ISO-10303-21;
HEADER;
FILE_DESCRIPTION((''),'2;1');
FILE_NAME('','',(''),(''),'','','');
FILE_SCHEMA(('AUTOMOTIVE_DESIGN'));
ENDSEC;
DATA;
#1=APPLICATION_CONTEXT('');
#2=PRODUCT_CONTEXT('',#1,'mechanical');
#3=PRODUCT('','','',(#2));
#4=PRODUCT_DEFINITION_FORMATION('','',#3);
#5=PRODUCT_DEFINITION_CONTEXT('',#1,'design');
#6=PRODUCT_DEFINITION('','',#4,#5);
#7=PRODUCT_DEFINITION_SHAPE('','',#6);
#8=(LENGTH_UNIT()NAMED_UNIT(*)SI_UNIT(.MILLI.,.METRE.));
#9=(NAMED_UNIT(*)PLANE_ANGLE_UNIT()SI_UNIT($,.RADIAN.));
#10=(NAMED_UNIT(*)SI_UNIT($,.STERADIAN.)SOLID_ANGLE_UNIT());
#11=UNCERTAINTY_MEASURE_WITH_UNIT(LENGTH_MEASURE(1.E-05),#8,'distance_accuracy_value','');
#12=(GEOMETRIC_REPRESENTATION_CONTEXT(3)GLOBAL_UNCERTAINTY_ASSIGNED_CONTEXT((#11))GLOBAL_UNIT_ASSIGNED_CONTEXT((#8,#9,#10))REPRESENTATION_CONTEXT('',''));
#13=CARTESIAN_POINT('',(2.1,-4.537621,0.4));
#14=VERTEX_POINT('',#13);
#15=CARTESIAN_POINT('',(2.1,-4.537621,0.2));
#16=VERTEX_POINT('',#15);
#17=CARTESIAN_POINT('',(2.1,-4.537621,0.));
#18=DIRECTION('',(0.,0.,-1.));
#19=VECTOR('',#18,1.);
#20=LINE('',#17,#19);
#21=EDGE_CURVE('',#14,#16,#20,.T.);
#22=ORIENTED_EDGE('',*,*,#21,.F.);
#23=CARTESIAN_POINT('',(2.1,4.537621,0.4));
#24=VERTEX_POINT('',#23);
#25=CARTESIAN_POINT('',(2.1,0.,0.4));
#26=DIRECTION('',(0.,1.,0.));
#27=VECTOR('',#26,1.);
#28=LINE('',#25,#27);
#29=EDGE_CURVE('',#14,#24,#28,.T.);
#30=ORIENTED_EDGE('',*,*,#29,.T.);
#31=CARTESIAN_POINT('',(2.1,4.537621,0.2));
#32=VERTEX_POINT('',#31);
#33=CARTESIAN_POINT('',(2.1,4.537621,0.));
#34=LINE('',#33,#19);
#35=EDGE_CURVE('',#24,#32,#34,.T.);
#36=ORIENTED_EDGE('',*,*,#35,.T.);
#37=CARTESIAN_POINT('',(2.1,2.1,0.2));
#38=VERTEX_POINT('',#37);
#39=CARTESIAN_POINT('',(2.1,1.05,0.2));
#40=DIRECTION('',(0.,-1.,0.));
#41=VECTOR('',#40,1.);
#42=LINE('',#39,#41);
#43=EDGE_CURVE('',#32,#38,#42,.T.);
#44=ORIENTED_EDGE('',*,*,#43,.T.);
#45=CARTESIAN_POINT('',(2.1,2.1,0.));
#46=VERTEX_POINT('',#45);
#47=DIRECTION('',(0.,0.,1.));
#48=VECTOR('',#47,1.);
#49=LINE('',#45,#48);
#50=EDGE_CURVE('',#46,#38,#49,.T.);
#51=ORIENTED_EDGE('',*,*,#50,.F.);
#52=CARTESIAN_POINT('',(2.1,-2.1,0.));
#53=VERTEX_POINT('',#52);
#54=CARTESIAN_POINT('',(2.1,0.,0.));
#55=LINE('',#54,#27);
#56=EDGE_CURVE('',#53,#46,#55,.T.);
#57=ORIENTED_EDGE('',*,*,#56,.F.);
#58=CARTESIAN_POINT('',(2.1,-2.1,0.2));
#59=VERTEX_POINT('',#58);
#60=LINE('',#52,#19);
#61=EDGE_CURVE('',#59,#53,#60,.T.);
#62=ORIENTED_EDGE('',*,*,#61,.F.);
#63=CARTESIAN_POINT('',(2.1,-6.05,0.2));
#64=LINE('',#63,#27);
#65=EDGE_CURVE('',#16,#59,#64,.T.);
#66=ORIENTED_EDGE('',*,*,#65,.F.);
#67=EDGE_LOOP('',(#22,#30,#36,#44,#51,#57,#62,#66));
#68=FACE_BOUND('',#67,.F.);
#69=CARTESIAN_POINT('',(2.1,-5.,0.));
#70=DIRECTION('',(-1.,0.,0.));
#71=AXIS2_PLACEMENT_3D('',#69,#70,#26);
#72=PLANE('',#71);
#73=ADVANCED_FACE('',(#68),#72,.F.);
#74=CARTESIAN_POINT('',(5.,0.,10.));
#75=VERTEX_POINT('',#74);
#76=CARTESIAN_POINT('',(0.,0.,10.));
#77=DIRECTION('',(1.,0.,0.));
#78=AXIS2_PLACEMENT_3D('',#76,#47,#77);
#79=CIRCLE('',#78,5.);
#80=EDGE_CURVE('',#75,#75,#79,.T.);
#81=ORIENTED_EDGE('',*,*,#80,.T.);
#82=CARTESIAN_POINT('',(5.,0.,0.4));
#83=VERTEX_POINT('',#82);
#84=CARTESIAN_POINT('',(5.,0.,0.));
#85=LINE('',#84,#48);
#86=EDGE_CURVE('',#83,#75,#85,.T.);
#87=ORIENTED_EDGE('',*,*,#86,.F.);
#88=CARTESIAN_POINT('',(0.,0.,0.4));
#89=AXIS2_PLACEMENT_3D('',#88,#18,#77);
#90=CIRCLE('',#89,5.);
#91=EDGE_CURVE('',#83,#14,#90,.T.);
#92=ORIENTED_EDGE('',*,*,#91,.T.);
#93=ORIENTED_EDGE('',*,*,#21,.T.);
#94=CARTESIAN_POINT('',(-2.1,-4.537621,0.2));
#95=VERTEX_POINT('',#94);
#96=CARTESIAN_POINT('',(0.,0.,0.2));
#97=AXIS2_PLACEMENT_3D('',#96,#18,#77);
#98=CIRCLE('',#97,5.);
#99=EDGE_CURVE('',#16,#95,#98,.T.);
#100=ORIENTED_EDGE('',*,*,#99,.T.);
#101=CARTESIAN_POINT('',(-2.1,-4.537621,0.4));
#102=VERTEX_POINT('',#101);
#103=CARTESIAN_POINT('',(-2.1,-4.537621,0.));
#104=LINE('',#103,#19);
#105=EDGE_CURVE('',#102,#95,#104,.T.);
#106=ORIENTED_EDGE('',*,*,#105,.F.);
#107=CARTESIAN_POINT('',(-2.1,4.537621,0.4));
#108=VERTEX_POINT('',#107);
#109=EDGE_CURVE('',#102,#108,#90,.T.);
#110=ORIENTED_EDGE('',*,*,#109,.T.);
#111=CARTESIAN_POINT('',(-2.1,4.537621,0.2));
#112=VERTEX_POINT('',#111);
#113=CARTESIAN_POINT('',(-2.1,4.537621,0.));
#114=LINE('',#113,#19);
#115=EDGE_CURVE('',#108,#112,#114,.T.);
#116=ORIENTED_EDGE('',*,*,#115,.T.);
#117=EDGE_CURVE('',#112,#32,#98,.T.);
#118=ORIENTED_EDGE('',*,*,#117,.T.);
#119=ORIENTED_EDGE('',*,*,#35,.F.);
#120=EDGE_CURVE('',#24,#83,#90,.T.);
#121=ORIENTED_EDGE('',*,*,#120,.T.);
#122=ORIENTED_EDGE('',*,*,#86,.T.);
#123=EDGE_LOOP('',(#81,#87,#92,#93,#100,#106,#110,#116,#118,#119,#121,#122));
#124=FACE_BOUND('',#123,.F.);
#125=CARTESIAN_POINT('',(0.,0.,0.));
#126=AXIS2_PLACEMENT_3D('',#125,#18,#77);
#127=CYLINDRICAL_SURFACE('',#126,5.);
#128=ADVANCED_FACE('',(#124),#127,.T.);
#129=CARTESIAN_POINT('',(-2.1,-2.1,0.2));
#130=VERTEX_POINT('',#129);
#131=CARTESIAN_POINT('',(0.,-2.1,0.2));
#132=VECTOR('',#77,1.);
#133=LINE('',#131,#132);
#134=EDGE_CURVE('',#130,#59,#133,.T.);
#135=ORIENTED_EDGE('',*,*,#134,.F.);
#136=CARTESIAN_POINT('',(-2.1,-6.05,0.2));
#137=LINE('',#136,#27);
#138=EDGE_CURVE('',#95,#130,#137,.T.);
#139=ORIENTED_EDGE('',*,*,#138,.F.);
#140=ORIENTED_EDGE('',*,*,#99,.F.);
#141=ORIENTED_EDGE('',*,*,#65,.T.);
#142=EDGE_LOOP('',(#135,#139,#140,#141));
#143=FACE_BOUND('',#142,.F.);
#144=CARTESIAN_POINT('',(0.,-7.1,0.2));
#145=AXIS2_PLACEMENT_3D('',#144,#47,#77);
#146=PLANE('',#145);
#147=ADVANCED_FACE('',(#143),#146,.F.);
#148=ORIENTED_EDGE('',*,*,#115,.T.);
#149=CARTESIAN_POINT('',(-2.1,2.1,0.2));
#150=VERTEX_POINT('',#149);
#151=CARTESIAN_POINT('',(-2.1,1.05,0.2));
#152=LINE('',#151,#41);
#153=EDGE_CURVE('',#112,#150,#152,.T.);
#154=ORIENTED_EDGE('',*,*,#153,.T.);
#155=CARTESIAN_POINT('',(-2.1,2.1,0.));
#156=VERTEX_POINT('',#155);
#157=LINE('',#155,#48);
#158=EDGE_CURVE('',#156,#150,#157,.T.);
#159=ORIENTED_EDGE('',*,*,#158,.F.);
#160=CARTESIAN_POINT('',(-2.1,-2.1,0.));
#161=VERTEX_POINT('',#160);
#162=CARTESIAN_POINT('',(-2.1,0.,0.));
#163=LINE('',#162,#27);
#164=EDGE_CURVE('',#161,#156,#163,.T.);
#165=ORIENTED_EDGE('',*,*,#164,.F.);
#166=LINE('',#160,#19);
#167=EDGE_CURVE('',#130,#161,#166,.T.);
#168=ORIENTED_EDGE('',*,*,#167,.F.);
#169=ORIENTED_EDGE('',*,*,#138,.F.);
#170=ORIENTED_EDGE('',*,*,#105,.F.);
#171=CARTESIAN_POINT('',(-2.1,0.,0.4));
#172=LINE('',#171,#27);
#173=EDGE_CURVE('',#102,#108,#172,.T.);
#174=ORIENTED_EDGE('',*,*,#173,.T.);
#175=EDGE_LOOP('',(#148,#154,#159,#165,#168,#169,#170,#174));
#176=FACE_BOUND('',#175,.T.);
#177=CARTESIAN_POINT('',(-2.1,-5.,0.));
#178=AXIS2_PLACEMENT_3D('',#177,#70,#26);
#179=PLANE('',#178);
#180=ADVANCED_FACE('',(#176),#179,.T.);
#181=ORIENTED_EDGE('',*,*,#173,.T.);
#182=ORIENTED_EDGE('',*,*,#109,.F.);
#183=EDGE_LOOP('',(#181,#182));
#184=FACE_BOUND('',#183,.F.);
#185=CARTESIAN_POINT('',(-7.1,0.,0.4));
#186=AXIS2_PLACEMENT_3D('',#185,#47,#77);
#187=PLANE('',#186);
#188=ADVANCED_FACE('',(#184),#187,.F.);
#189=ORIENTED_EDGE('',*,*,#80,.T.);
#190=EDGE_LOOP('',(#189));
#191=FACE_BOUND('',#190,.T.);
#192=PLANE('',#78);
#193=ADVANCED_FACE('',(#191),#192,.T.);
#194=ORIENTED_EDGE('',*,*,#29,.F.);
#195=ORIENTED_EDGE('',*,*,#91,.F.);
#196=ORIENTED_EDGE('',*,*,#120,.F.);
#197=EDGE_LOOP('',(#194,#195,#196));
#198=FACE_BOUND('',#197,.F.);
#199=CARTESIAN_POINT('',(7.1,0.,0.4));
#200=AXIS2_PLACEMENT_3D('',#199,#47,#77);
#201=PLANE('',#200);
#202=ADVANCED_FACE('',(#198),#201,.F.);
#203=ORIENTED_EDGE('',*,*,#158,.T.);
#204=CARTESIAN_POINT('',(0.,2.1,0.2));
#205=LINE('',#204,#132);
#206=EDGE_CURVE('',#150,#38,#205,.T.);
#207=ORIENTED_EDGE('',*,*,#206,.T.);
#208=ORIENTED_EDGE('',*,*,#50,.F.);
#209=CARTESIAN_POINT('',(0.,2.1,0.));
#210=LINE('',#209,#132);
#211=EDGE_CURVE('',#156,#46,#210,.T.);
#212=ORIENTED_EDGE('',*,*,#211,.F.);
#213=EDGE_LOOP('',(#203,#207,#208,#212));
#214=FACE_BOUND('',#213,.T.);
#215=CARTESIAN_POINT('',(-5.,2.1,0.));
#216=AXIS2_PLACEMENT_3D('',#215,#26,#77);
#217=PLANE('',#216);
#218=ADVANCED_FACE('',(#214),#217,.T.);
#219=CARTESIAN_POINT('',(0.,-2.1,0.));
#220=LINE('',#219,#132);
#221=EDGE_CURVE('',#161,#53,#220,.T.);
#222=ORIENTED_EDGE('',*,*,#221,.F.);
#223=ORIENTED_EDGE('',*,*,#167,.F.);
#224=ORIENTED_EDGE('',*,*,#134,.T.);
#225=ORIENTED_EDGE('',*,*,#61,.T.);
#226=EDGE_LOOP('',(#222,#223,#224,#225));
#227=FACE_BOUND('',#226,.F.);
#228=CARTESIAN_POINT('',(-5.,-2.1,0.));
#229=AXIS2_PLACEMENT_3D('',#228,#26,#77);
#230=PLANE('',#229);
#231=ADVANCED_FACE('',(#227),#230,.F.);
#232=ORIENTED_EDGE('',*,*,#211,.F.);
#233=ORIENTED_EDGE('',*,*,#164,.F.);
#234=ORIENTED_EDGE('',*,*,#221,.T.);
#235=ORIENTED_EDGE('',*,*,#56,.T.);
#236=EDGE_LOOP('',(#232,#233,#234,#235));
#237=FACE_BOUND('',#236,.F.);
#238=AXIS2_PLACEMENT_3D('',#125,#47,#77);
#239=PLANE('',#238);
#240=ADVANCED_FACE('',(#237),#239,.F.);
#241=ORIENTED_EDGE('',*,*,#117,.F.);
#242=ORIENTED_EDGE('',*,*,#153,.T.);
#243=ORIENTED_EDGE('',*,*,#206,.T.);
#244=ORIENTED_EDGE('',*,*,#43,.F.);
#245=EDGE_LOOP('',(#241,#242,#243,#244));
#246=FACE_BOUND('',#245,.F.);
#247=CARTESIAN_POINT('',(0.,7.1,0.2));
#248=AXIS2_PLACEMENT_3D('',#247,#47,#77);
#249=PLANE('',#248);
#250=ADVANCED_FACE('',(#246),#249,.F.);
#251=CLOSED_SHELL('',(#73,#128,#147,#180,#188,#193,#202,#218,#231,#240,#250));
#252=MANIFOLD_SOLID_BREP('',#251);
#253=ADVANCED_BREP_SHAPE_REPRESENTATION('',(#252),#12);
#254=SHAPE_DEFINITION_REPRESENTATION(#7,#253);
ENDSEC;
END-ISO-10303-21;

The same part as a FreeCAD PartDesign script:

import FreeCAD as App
import Part
import Sketcher
from FreeCAD import Vector


def add_polygon(sketch, points):
    """Adds a closed chain of lines whose ends are joined by coincident constraints."""
    first, n = sketch.GeometryCount, len(points)
    for a, b in zip(points, points[1:] + points[:1]):
        sketch.addGeometry(Part.LineSegment(App.Vector(*a, 0), App.Vector(*b, 0)), False)
    for i in range(n):
        sketch.addConstraint(Sketcher.Constraint("Coincident", first + i, 2, first + (i + 1) % n, 1))

doc = App.newDocument("Part")
body = doc.addObject("PartDesign::Body", "Body")

sketch1 = body.newObject("Sketcher::SketchObject", "Sketch")
sketch1.AttachmentSupport = (doc.getObject("XY_Plane"), [""])
sketch1.MapMode = "FlatFace"
add_polygon(sketch1, [(2, 5), (2, -5), (12, -5), (12, 5)])
sketch1.addConstraint([
    Sketcher.Constraint("Vertical", 0),
    Sketcher.Constraint("Horizontal", 1),
    Sketcher.Constraint("Vertical", 2),
    Sketcher.Constraint("Horizontal", 3),
    Sketcher.Constraint("Equal", 3, 0),
    Sketcher.Constraint("DistanceX", 1, 1, 1, 2, 10.0),
    Sketcher.Constraint("DistanceY", 0, 2, -1, 1, 5.0),
    Sketcher.Constraint("DistanceX", -1, 1, 0, 2, 2.1),
])
pad1 = body.newObject("PartDesign::Pad", "Pad")
pad1.Profile = sketch1
pad1.Length = 0.4
body2 = doc.addObject("PartDesign::Body", "Body001")

sketch2 = body2.newObject("Sketcher::SketchObject", "Sketch001")
sketch2.AttachmentSupport = (doc.getObject("XY_Plane001"), [""])
sketch2.MapMode = "FlatFace"
add_polygon(sketch2, [(-12, 5), (-12, -5), (-2, -5), (-2, 5)])
sketch2.addConstraint([
    Sketcher.Constraint("Vertical", 0),
    Sketcher.Constraint("Horizontal", 1),
    Sketcher.Constraint("Vertical", 2),
    Sketcher.Constraint("Horizontal", 3),
    Sketcher.Constraint("Equal", 3, 0),
    Sketcher.Constraint("DistanceX", 1, 1, 1, 2, 10.0),
    Sketcher.Constraint("DistanceY", 0, 2, -1, 1, 5.0),
    Sketcher.Constraint("DistanceX", 0, 2, -1, 1, 12.1),
])
pad2 = body2.newObject("PartDesign::Pad", "Pad001")
pad2.Profile = sketch2
pad2.Length = 0.4
body3 = doc.addObject("PartDesign::Body", "Body002")

sketch3 = body3.newObject("Sketcher::SketchObject", "Sketch002")
sketch3.AttachmentSupport = (doc.getObject("XY_Plane002"), [""])
sketch3.MapMode = "FlatFace"
add_polygon(sketch3, [(-5, -2), (-5, -12), (5, -12), (5, -2)])
sketch3.addConstraint([
    Sketcher.Constraint("Vertical", 0),
    Sketcher.Constraint("Horizontal", 1),
    Sketcher.Constraint("Vertical", 2),
    Sketcher.Constraint("Horizontal", 3),
    Sketcher.Constraint("Equal", 3, 0),
    Sketcher.Constraint("DistanceX", 1, 1, 1, 2, 10.0),
    Sketcher.Constraint("DistanceX", 0, 2, -1, 1, 5.0),
    Sketcher.Constraint("DistanceY", 0, 2, -1, 1, 12.1),
])
pad3 = body3.newObject("PartDesign::Pad", "Pad002")
pad3.Profile = sketch3
pad3.Length = 0.2
body4 = doc.addObject("PartDesign::Body", "Body003")

sketch4 = body4.newObject("Sketcher::SketchObject", "Sketch003")
sketch4.AttachmentSupport = (doc.getObject("XY_Plane003"), [""])
sketch4.MapMode = "FlatFace"
add_polygon(sketch4, [(-5, 12), (-5, 2), (5, 2), (5, 12)])
sketch4.addConstraint([
    Sketcher.Constraint("Vertical", 0),
    Sketcher.Constraint("Horizontal", 1),
    Sketcher.Constraint("Vertical", 2),
    Sketcher.Constraint("Horizontal", 3),
    Sketcher.Constraint("Equal", 3, 0),
    Sketcher.Constraint("DistanceX", 1, 1, 1, 2, 10.0),
    Sketcher.Constraint("DistanceX", 0, 2, -1, 1, 5.0),
    Sketcher.Constraint("DistanceY", -1, 1, 0, 2, 2.1),
])
pad4 = body4.newObject("PartDesign::Pad", "Pad003")
pad4.Profile = sketch4
pad4.Length = 0.2
doc.recompute()

boolean = body4.newObject("PartDesign::Boolean", "Boolean")
boolean.Type = "Fuse"
boolean.addObjects([body])
doc.recompute()

boolean2 = body4.newObject("PartDesign::Boolean", "Boolean001")
boolean2.Type = "Fuse"
boolean2.addObjects([body2])
doc.recompute()

boolean3 = body4.newObject("PartDesign::Boolean", "Boolean002")
boolean3.Type = "Fuse"
boolean3.addObjects([body3])
body5 = doc.addObject("PartDesign::Body", "Body004")

sketch5 = body5.newObject("Sketcher::SketchObject", "Sketch004")
sketch5.AttachmentSupport = (doc.getObject("XY_Plane004"), [""])
sketch5.MapMode = "FlatFace"
sketch5.addGeometry(Part.Circle(Vector(0, 0, 0), Vector(0, 0, 1), 5), False)
sketch5.addConstraint([
    Sketcher.Constraint("Coincident", 0, 3, -1, 1),
    Sketcher.Constraint("Diameter", 0, 10.0),
])
pad5 = body5.newObject("PartDesign::Pad", "Pad004")
pad5.Profile = sketch5
pad5.Length = 10
doc.recompute()

boolean4 = body5.newObject("PartDesign::Boolean", "Boolean003")
boolean4.Type = "Cut"
boolean4.addObjects([body4])

doc.recompute()
